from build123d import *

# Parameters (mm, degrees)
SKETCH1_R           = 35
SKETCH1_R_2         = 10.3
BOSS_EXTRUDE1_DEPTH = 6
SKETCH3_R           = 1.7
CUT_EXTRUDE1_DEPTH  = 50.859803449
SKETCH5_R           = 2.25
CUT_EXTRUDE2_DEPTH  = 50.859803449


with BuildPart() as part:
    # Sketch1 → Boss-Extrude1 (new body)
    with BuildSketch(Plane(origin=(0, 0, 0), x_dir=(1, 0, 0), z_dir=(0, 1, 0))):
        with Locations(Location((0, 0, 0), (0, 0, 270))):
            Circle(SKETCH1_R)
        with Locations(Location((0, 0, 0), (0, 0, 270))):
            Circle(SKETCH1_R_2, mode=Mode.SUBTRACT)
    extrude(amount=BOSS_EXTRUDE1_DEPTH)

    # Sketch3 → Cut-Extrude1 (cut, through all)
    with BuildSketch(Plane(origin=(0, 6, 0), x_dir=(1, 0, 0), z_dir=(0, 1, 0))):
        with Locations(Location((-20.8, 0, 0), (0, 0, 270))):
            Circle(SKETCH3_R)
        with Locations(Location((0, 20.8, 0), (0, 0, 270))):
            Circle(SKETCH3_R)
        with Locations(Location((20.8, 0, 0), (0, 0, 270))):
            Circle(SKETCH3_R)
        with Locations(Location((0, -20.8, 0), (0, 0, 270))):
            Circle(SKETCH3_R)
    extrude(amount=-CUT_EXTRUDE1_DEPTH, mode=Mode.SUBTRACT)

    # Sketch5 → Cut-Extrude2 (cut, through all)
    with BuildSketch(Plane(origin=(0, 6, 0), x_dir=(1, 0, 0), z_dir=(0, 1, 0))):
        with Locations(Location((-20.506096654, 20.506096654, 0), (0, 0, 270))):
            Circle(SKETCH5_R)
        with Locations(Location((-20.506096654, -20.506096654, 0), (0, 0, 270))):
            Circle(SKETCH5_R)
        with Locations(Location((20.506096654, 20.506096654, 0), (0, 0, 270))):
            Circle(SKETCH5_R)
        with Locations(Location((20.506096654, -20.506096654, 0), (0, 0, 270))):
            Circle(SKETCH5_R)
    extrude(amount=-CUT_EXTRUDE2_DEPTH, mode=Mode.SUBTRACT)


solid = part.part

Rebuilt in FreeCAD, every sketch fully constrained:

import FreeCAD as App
import Part
import Sketcher
Q = App.Units.Quantity

doc = App.newDocument("Part")
body = doc.addObject("PartDesign::Body", "Body")

sketch1 = body.newObject("Sketcher::SketchObject", "Sketch")
sketch1.AttachmentSupport = (doc.getObject("XZ_Plane"), [""])
sketch1.MapMode = "FlatFace"
sketch1.addGeometry([
    Part.Circle(App.Vector(0, 0, 0), App.Vector(0, 0, 1), 35),
    Part.Circle(App.Vector(0, 0, 0), App.Vector(0, 0, 1), 10),
], False)
sketch1.addConstraint([
    Sketcher.Constraint("Coincident", 0, 3, -1, 1),
    Sketcher.Constraint("Coincident", 1, 3, -1, 1),
    Sketcher.Constraint("Diameter", 0, Q("70 mm")),
    Sketcher.Constraint("Diameter", 1, Q("20.6 mm")),
])
pad1 = body.newObject("PartDesign::Pad", "Pad")
pad1.Profile = sketch1
pad1.Length = 6
pad1.Reversed = True

sketch2 = body.newObject("Sketcher::SketchObject", "Sketch001")
sketch2.AttachmentSupport = (doc.getObject("XZ_Plane"), [""])
sketch2.MapMode = "FlatFace"
sketch2.AttachmentOffset = App.Placement(App.Vector(0, 0, -6), App.Rotation())
sketch2.addGeometry([
    Part.Circle(App.Vector(-20.8, 0, 0), App.Vector(0, 0, 1), 1.7),
    Part.Circle(App.Vector(0, -20.8, 0), App.Vector(0, 0, 1), 1.7),
    Part.Circle(App.Vector(20.8, 0, 0), App.Vector(0, 0, 1), 1.7),
    Part.Circle(App.Vector(0, 20.8, 0), App.Vector(0, 0, 1), 1.7),
], False)
sketch2.addConstraint([
    Sketcher.Constraint("Equal", 0, 1),
    Sketcher.Constraint("Equal", 1, 2),
    Sketcher.Constraint("Equal", 2, 3),
    Sketcher.Constraint("Symmetric", 0, 3, 2, 3, -1, 1),
    Sketcher.Constraint("Symmetric", 1, 3, 3, 3, -1, 1),
    Sketcher.Constraint("PointOnObject", 0, 3, -1),
    Sketcher.Constraint("PointOnObject", 1, 3, -2),
    Sketcher.Constraint("Diameter", 0, Q("3.4 mm")),
    Sketcher.Constraint("DistanceX", 0, 3, -1, 1, Q("20.8 mm")),
    Sketcher.Constraint("DistanceY", 1, 3, -1, 1, Q("20.8 mm")),
])
pocket1 = body.newObject("PartDesign::Pocket", "Pocket")
pocket1.Profile = sketch2
pocket1.Type = "ThroughAll"
pocket1.Reversed = True

sketch3 = body.newObject("Sketcher::SketchObject", "Sketch002")
sketch3.AttachmentSupport = (doc.getObject("XZ_Plane"), [""])
sketch3.MapMode = "FlatFace"
sketch3.AttachmentOffset = App.Placement(App.Vector(0, 0, -6), App.Rotation())
sketch3.addGeometry([
    Part.Circle(App.Vector(-20.5, -20.5, 0), App.Vector(0, 0, 1), 2.2),
    Part.Circle(App.Vector(-20.5, 20.5, 0), App.Vector(0, 0, 1), 2.2),
    Part.Circle(App.Vector(20.5, -20.5, 0), App.Vector(0, 0, 1), 2.2),
    Part.Circle(App.Vector(20.5, 20.5, 0), App.Vector(0, 0, 1), 2.2),
], False)
sketch3.addConstraint([
    Sketcher.Constraint("Equal", 0, 1),
    Sketcher.Constraint("Equal", 1, 2),
    Sketcher.Constraint("Equal", 2, 3),
    Sketcher.Constraint("Symmetric", 1, 3, 2, 3, -1, 1),
    Sketcher.Constraint("Symmetric", 0, 3, 3, 3, -1, 1),
    Sketcher.Constraint("Symmetric", 0, 3, 2, 3, -2),
    Sketcher.Constraint("Diameter", 0, Q("4.5 mm")),
    Sketcher.Constraint("DistanceX", 0, 3, -1, 1, Q("20.506097 mm")),
    Sketcher.Constraint("DistanceY", 0, 3, -1, 1, Q("20.506097 mm")),
])
pocket2 = body.newObject("PartDesign::Pocket", "Pocket001")
pocket2.Profile = sketch3
pocket2.Type = "ThroughAll"
pocket2.Reversed = True

doc.recompute()
